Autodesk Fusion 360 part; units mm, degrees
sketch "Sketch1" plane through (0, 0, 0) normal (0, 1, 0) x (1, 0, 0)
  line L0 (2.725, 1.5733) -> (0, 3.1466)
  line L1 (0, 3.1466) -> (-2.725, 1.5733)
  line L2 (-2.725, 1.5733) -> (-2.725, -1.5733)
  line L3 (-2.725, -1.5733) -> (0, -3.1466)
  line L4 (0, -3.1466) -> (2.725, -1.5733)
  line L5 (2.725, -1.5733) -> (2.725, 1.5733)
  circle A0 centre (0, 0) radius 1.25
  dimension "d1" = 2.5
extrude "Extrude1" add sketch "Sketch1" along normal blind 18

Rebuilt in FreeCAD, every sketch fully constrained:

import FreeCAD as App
import Part
import Sketcher

V = App.Vector
Q = App.Units.Quantity

doc = App.newDocument("Part")
params = doc.addObject("Spreadsheet::Sheet", "Params")
for row, (alias, value) in enumerate([
    ("sketch1_diameter", "2.5 mm"),
    ("pad1_length", "18 mm"),
], start=1):
    params.set(f"A{row}", alias)
    params.set(f"B{row}", "=" + value)
    params.setAlias(f"B{row}", alias)

body = doc.addObject("PartDesign::Body", "Body")

sketch1 = body.newObject("Sketcher::SketchObject", "Sketch")
sketch1.AttachmentSupport = (doc.getObject("XZ_Plane"), [""])
sketch1.MapMode = "FlatFace"
sketch1.addGeometry([
    Part.LineSegment(V(2.725, 1.5733, 0), V(2.725, -1.5733, 0)),
    Part.LineSegment(V(2.725, -1.5733, 0), V(0, -3.1466, 0)),
    Part.LineSegment(V(0, -3.1466, 0), V(-2.725, -1.5733, 0)),
    Part.LineSegment(V(-2.725, -1.5733, 0), V(-2.725, 1.5733, 0)),
    Part.LineSegment(V(-2.725, 1.5733, 0), V(0, 3.1466, 0)),
    Part.LineSegment(V(0, 3.1466, 0), V(2.725, 1.5733, 0)),
    Part.Circle(V(0, 0, 0), V(0, 0, 1), 1.25),
], False)
sketch1.addConstraint([
    Sketcher.Constraint("Coincident", 0, 2, 1, 1),
    Sketcher.Constraint("Coincident", 1, 2, 2, 1),
    Sketcher.Constraint("Coincident", 2, 2, 3, 1),
    Sketcher.Constraint("Coincident", 3, 2, 4, 1),
    Sketcher.Constraint("Coincident", 4, 2, 5, 1),
    Sketcher.Constraint("Coincident", 5, 2, 0, 1),
    Sketcher.Constraint("Vertical", 0),
    Sketcher.Constraint("Vertical", 3),
    Sketcher.Constraint("Coincident", 6, 3, -1, 1),
    Sketcher.Constraint("Symmetric", 0, 2, 3, 2, -1, 1),
    Sketcher.Constraint("Symmetric", 1, 2, 4, 2, -1, 1),
    Sketcher.Constraint("PointOnObject", 1, 2, -2),
    Sketcher.Constraint("Parallel", 2, 5),
    Sketcher.Constraint("Horizontal", 0, 2, 2, 2),
    Sketcher.Constraint("Diameter", 6, Q("2.5 mm")),
    Sketcher.Constraint("Angle", 1, Q("-149.9997 deg")),
    Sketcher.Constraint("DistanceX", 2, 2, 0, 2, Q("5.45 mm")),
    Sketcher.Constraint("DistanceY", 1, 2, 3, 2, Q("4.72 mm")),
])
sketch1.setExpression("Constraints[14]", "Params.sketch1_diameter")
pad1 = body.newObject("PartDesign::Pad", "Pad")
pad1.Profile = sketch1
pad1.setExpression("Length", "Params.pad1_length")
pad1.Reversed = True

doc.recompute()
